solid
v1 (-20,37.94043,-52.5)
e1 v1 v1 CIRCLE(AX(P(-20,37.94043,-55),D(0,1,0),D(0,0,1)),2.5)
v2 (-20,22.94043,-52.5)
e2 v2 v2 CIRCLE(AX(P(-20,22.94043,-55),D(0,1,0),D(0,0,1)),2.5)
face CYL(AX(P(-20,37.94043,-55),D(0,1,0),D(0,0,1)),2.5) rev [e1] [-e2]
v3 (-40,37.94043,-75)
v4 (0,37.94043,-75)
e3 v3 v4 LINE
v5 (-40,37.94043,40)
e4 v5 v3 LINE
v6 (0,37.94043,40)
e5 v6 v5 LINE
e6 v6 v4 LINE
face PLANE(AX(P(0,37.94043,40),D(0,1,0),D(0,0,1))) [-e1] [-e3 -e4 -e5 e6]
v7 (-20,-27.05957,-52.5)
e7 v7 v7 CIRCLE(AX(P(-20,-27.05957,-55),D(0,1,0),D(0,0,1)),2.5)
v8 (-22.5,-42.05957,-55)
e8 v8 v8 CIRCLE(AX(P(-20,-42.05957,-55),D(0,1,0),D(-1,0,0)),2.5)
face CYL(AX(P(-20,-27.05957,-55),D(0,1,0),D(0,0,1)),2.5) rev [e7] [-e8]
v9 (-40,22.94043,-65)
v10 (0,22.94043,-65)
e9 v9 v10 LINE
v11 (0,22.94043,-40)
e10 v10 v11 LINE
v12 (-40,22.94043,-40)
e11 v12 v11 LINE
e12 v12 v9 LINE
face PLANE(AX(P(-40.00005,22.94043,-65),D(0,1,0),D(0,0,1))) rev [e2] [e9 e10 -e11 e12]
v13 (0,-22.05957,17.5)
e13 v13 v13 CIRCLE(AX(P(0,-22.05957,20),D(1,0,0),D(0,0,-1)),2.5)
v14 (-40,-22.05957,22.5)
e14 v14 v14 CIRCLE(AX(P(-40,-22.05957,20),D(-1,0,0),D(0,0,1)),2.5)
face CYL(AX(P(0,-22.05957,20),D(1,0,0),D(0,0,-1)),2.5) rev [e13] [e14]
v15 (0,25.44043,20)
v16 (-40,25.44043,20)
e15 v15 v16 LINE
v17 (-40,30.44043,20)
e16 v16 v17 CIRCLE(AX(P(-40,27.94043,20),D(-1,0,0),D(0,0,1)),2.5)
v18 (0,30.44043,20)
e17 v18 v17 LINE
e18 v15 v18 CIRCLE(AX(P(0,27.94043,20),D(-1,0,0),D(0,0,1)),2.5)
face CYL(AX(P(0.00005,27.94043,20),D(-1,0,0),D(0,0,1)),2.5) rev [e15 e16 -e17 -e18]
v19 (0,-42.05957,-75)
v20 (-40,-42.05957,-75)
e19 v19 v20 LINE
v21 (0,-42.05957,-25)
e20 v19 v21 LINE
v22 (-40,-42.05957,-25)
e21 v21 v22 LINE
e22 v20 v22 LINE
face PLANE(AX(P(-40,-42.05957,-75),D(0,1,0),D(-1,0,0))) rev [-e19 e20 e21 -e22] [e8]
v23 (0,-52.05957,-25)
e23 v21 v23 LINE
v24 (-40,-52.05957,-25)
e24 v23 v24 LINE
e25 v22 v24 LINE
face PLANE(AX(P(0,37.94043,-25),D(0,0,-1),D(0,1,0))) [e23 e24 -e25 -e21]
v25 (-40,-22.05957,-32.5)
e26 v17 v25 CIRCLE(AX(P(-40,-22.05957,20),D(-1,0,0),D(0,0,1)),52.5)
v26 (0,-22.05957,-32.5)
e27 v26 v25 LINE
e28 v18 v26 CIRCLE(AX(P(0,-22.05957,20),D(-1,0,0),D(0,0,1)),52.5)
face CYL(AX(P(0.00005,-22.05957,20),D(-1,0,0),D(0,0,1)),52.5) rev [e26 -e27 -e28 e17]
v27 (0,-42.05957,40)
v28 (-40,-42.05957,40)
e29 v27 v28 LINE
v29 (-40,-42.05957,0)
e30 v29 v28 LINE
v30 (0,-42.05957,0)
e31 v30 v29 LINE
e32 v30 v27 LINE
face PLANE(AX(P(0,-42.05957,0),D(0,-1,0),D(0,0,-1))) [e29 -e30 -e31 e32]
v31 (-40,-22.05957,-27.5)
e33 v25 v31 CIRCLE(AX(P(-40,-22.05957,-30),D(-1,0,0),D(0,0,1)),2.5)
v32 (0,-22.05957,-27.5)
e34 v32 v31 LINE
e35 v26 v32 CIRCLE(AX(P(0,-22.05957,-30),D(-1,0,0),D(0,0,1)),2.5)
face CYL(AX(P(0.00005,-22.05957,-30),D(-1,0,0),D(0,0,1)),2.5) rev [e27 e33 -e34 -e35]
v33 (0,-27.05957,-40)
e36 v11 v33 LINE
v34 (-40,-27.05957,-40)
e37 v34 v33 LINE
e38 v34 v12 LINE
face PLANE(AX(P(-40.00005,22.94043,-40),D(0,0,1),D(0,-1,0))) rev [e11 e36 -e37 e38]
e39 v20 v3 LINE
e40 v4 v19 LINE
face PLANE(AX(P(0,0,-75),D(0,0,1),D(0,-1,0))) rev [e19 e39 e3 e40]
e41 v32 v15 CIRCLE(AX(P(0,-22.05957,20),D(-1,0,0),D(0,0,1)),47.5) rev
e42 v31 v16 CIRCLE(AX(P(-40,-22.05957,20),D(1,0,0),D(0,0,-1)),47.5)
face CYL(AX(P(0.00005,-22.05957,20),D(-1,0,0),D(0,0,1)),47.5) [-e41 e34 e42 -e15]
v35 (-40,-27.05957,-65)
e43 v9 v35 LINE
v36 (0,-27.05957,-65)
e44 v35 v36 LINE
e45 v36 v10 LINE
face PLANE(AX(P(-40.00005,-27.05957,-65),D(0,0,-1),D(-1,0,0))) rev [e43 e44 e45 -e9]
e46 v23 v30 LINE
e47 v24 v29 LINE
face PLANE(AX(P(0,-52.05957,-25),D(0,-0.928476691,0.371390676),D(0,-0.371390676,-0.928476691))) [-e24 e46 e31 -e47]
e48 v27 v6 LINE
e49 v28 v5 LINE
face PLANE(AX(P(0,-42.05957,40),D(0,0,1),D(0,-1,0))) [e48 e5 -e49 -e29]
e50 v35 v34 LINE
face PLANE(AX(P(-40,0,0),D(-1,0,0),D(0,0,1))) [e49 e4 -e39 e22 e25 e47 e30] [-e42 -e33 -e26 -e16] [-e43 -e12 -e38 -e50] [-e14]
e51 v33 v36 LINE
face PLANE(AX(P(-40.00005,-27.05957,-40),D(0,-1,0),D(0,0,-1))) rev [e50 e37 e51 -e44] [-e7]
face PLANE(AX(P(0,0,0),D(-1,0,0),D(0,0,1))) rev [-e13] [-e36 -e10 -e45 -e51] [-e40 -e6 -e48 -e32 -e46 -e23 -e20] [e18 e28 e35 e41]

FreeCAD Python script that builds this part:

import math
import FreeCAD as App
import Part
import Sketcher

doc = App.newDocument("Part")
params = doc.addObject("Spreadsheet::Sheet", "Params")
for row, (alias, value) in enumerate([
    ("sketch1_width", "90 mm"),
    ("sketch1_width2", "80 mm"),
    ("sketch1_height", "65 mm"),
    ("sketch1_height2", "40 mm"),
    ("pad1_length", "40 mm"),
    ("sketch2_width", "40 mm"),
    ("sketch2_height", "80 mm"),
    ("pad2_length", "50 mm"),
    ("sketch3_radius", "2.5 mm"),
    ("sketch3_radius2", "47.5 mm"),
    ("sketch4_width", "50 mm"),
    ("sketch4_height", "25 mm"),
    ("sketch5_diameter", "5 mm"),
    ("hole_diameter", "5 mm"),
    ("hole_depth", "25.000025 mm"),
    ("sketch6_diameter", "5 mm"),
    ("hole2_diameter", "5 mm"),
    ("hole2_depth", "40.00005 mm"),
    ("sketch7_diameter", "5 mm"),
    ("hole3_diameter", "5 mm"),
    ("hole3_depth", "90.000025 mm"),
], start=1):
    params.set(f"A{row}", alias)
    params.set(f"B{row}", "=" + value)
    params.setAlias(f"B{row}", alias)

body = doc.addObject("PartDesign::Body", "Body")

# Sketch on YZ plane
sketch1 = body.newObject("Sketcher::SketchObject", "Sketch")
sketch1.AttachmentSupport = (doc.getObject("YZ_Plane"), [""])
sketch1.MapMode = "FlatFace"
sketch1.AttachmentOffset = App.Placement(App.Vector(0, 0, -40), App.Rotation())
sketch1.addGeometry(Part.LineSegment(App.Vector(38, 40, 0), App.Vector(38, -25, 0)), False)
sketch1.addGeometry(Part.LineSegment(App.Vector(38, -25, 0), App.Vector(-52, -25, 0)), False)
sketch1.addGeometry(Part.LineSegment(App.Vector(-52, -25, 0), App.Vector(-42, 0, 0)), False)
sketch1.addGeometry(Part.LineSegment(App.Vector(-42, 0, 0), App.Vector(-42, 40, 0)), False)
sketch1.addGeometry(Part.LineSegment(App.Vector(-42, 40, 0), App.Vector(38, 40, 0)), False)
sketch1.addConstraint(Sketcher.Constraint("Coincident", 0, 2, 1, 1))
sketch1.addConstraint(Sketcher.Constraint("Coincident", 1, 2, 2, 1))
sketch1.addConstraint(Sketcher.Constraint("Coincident", 2, 2, 3, 1))
sketch1.addConstraint(Sketcher.Constraint("Coincident", 3, 2, 4, 1))
sketch1.addConstraint(Sketcher.Constraint("Coincident", 4, 2, 0, 1))
sketch1.addConstraint(Sketcher.Constraint("Vertical", 0))
sketch1.addConstraint(Sketcher.Constraint("Horizontal", 1))
sketch1.addConstraint(Sketcher.Constraint("Vertical", 3))
sketch1.addConstraint(Sketcher.Constraint("Horizontal", 4))
sketch1.addConstraint(Sketcher.Constraint("PointOnObject", 2, 2, -1))
sketch1.addConstraint(Sketcher.Constraint("DistanceX", 1, 2, 1, 1, 90.0))
sketch1.addConstraint(Sketcher.Constraint("DistanceX", 4, 1, 4, 2, 80.0))
sketch1.addConstraint(Sketcher.Constraint("DistanceY", 0, 2, 0, 1, 65.0))
sketch1.addConstraint(Sketcher.Constraint("DistanceY", 3, 1, 3, 2, 40.0))
sketch1.addConstraint(Sketcher.Constraint("DistanceX", -1, 1, 0, 2, 37.94043))
sketch1.setExpression("Constraints[10]", "Params.sketch1_width")
sketch1.setExpression("Constraints[11]", "Params.sketch1_width2")
sketch1.setExpression("Constraints[12]", "Params.sketch1_height")
sketch1.setExpression("Constraints[13]", "Params.sketch1_height2")
pad1 = body.newObject("PartDesign::Pad", "Pad")
pad1.Profile = sketch1
pad1.setExpression("Length", "Params.pad1_length")

# Sketch on XY plane
sketch2 = body.newObject("Sketcher::SketchObject", "Sketch001")
sketch2.AttachmentSupport = (doc.getObject("XY_Plane"), [""])
sketch2.MapMode = "FlatFace"
sketch2.AttachmentOffset = App.Placement(App.Vector(0, 0, -25), App.Rotation())
sketch2.addGeometry(Part.LineSegment(App.Vector(0, 38, 0), App.Vector(0, -42, 0)), False)
sketch2.addGeometry(Part.LineSegment(App.Vector(0, -42, 0), App.Vector(-40, -42, 0)), False)
sketch2.addGeometry(Part.LineSegment(App.Vector(-40, -42, 0), App.Vector(-40, 38, 0)), False)
sketch2.addGeometry(Part.LineSegment(App.Vector(-40, 38, 0), App.Vector(0, 38, 0)), False)
sketch2.addConstraint(Sketcher.Constraint("Coincident", 0, 2, 1, 1))
sketch2.addConstraint(Sketcher.Constraint("Coincident", 1, 2, 2, 1))
sketch2.addConstraint(Sketcher.Constraint("Coincident", 2, 2, 3, 1))
sketch2.addConstraint(Sketcher.Constraint("Coincident", 3, 2, 0, 1))
sketch2.addConstraint(Sketcher.Constraint("Vertical", 0))
sketch2.addConstraint(Sketcher.Constraint("Horizontal", 1))
sketch2.addConstraint(Sketcher.Constraint("Vertical", 2))
sketch2.addConstraint(Sketcher.Constraint("Horizontal", 3))
sketch2.addConstraint(Sketcher.Constraint("PointOnObject", 0, 2, -2))
sketch2.addConstraint(Sketcher.Constraint("DistanceX", 1, 2, 1, 1, 40.0))
sketch2.addConstraint(Sketcher.Constraint("DistanceY", 0, 2, 0, 1, 80.0))
sketch2.addConstraint(Sketcher.Constraint("DistanceY", 0, 2, -1, 1, 42.05957))
sketch2.setExpression("Constraints[9]", "Params.sketch2_width")
sketch2.setExpression("Constraints[10]", "Params.sketch2_height")
pad2 = body.newObject("PartDesign::Pad", "Pad001")
pad2.Profile = sketch2
pad2.setExpression("Length", "Params.pad2_length")
pad2.Reversed = True

# Sketch on YZ plane
sketch3 = body.newObject("Sketcher::SketchObject", "Sketch002")
sketch3.AttachmentSupport = (doc.getObject("YZ_Plane"), [""])
sketch3.MapMode = "FlatFace"
sketch3.AttachmentOffset = App.Placement(App.Vector(0, 0, -40), App.Rotation())
sketch3.addGeometry(Part.ArcOfCircle(Part.Circle(App.Vector(-22.1, -30, 0), App.Vector(0, 0, 1), 2.5), math.radians(90), math.radians(270)), False)
sketch3.addGeometry(Part.ArcOfCircle(Part.Circle(App.Vector(-22.1, 20, 0), App.Vector(0, 0, 1), 47.5), math.radians(-90), math.radians(0)), False)
sketch3.addGeometry(Part.ArcOfCircle(Part.Circle(App.Vector(27.9, 20, 0), App.Vector(0, 0, 1), 2.5), math.radians(0), math.radians(180)), False)
sketch3.addGeometry(Part.ArcOfCircle(Part.Circle(App.Vector(-22.1, 20, 0), App.Vector(0, 0, 1), 52.5), math.radians(-90), math.radians(0)), False)
sketch3.addConstraint(Sketcher.Constraint("Tangent", 0, 1, 1, 1))
sketch3.addConstraint(Sketcher.Constraint("Tangent", 1, 2, 2, 2))
sketch3.addConstraint(Sketcher.Constraint("Tangent", 2, 1, 3, 2))
sketch3.addConstraint(Sketcher.Constraint("Tangent", 3, 1, 0, 2))
sketch3.addConstraint(Sketcher.Constraint("Coincident", 3, 3, 1, 3))
sketch3.addConstraint(Sketcher.Constraint("Horizontal", 1, 3, 2, 3))
sketch3.addConstraint(Sketcher.Constraint("Vertical", 0, 3, 1, 3))
sketch3.addConstraint(Sketcher.Constraint("Radius", 0, 2.5))
sketch3.addConstraint(Sketcher.Constraint("Radius", 1, 47.5))
sketch3.addConstraint(Sketcher.Constraint("DistanceY", 0, 3, -1, 1, 30.0))
sketch3.addConstraint(Sketcher.Constraint("DistanceX", 0, 3, -1, 1, 22.05957))
sketch3.setExpression("Constraints[7]", "Params.sketch3_radius")
sketch3.setExpression("Constraints[8]", "Params.sketch3_radius2")
pocket1 = body.newObject("PartDesign::Pocket", "Pocket")
pocket1.Profile = sketch3
pocket1.Type = "ThroughAll"
pocket1.Reversed = True

# Sketch on YZ plane
sketch4 = body.newObject("Sketcher::SketchObject", "Sketch003")
sketch4.AttachmentSupport = (doc.getObject("YZ_Plane"), [""])
sketch4.MapMode = "FlatFace"
sketch4.addGeometry(Part.LineSegment(App.Vector(23, -40, 0), App.Vector(-27, -40, 0)), False)
sketch4.addGeometry(Part.LineSegment(App.Vector(-27, -40, 0), App.Vector(-27, -65, 0)), False)
sketch4.addGeometry(Part.LineSegment(App.Vector(-27, -65, 0), App.Vector(23, -65, 0)), False)
sketch4.addGeometry(Part.LineSegment(App.Vector(23, -65, 0), App.Vector(23, -40, 0)), False)
sketch4.addConstraint(Sketcher.Constraint("Coincident", 0, 2, 1, 1))
sketch4.addConstraint(Sketcher.Constraint("Coincident", 1, 2, 2, 1))
sketch4.addConstraint(Sketcher.Constraint("Coincident", 2, 2, 3, 1))
sketch4.addConstraint(Sketcher.Constraint("Coincident", 3, 2, 0, 1))
sketch4.addConstraint(Sketcher.Constraint("Horizontal", 0))
sketch4.addConstraint(Sketcher.Constraint("Vertical", 1))
sketch4.addConstraint(Sketcher.Constraint("Horizontal", 2))
sketch4.addConstraint(Sketcher.Constraint("Vertical", 3))
sketch4.addConstraint(Sketcher.Constraint("DistanceX", 0, 2, 0, 1, 50.0))
sketch4.addConstraint(Sketcher.Constraint("DistanceY", 1, 2, 1, 1, 25.0))
sketch4.addConstraint(Sketcher.Constraint("DistanceY", 0, 2, -1, 1, 40.0))
sketch4.addConstraint(Sketcher.Constraint("DistanceX", 0, 2, -1, 1, 27.05957))
sketch4.setExpression("Constraints[8]", "Params.sketch4_width")
sketch4.setExpression("Constraints[9]", "Params.sketch4_height")
pocket2 = body.newObject("PartDesign::Pocket", "Pocket001")
pocket2.Profile = sketch4
pocket2.Type = "ThroughAll"

# Sketch on XZ plane
sketch5 = body.newObject("Sketcher::SketchObject", "Sketch004")
sketch5.AttachmentSupport = (doc.getObject("XZ_Plane"), [""])
sketch5.MapMode = "FlatFace"
sketch5.AttachmentOffset = App.Placement(App.Vector(0, 0, 27.05957), App.Rotation())
sketch5.addGeometry(Part.Circle(App.Vector(-20, -55, 0), App.Vector(0, 0, 1), 2.5), False)
sketch5.addConstraint(Sketcher.Constraint("Diameter", 0, 5.0))
sketch5.addConstraint(Sketcher.Constraint("DistanceX", 0, 3, -1, 1, 20.0))
sketch5.addConstraint(Sketcher.Constraint("DistanceY", 0, 3, -1, 1, 55.0))
sketch5.setExpression("Constraints[0]", "Params.sketch5_diameter")
doc.recompute()
hole = body.newObject("PartDesign::Hole", "Hole")
hole.Profile = sketch5
hole.ThreadType = "None"
hole.setExpression("Diameter", "Params.hole_diameter")
hole.DepthType = "Dimension"
hole.setExpression("Depth", "Params.hole_depth")
hole.DrillPoint = "Flat"
hole.Reversed = True

# Sketch on YZ plane
sketch6 = body.newObject("Sketcher::SketchObject", "Sketch005")
sketch6.AttachmentSupport = (doc.getObject("YZ_Plane"), [""])
sketch6.MapMode = "FlatFace"
sketch6.addGeometry(Part.Circle(App.Vector(-22.1, 20, 0), App.Vector(0, 0, 1), 2.5), False)
sketch6.addConstraint(Sketcher.Constraint("Diameter", 0, 5.0))
sketch6.addConstraint(Sketcher.Constraint("DistanceY", -1, 1, 0, 3, 20.0))
sketch6.addConstraint(Sketcher.Constraint("DistanceX", 0, 3, -1, 1, 22.05957))
sketch6.setExpression("Constraints[0]", "Params.sketch6_diameter")
doc.recompute()
hole2 = body.newObject("PartDesign::Hole", "Hole001")
hole2.Profile = sketch6
hole2.ThreadType = "None"
hole2.setExpression("Diameter", "Params.hole2_diameter")
hole2.DepthType = "Dimension"
hole2.setExpression("Depth", "Params.hole2_depth")
hole2.DrillPoint = "Flat"

# Sketch on XZ plane
sketch7 = body.newObject("Sketcher::SketchObject", "Sketch006")
sketch7.AttachmentSupport = (doc.getObject("XZ_Plane"), [""])
sketch7.MapMode = "FlatFace"
sketch7.AttachmentOffset = App.Placement(App.Vector(0, 0, -37.94043), App.Rotation())
sketch7.addGeometry(Part.Circle(App.Vector(-20, -55, 0), App.Vector(0, 0, 1), 2.5), False)
sketch7.addConstraint(Sketcher.Constraint("Diameter", 0, 5.0))
sketch7.addConstraint(Sketcher.Constraint("DistanceX", 0, 3, -1, 1, 20.0))
sketch7.addConstraint(Sketcher.Constraint("DistanceY", 0, 3, -1, 1, 55.0))
sketch7.setExpression("Constraints[0]", "Params.sketch7_diameter")
doc.recompute()
hole3 = body.newObject("PartDesign::Hole", "Hole002")
hole3.Profile = sketch7
hole3.ThreadType = "None"
hole3.setExpression("Diameter", "Params.hole3_diameter")
hole3.DepthType = "Dimension"
hole3.setExpression("Depth", "Params.hole3_depth")
hole3.DrillPoint = "Flat"
hole3.Reversed = True

doc.recompute()
